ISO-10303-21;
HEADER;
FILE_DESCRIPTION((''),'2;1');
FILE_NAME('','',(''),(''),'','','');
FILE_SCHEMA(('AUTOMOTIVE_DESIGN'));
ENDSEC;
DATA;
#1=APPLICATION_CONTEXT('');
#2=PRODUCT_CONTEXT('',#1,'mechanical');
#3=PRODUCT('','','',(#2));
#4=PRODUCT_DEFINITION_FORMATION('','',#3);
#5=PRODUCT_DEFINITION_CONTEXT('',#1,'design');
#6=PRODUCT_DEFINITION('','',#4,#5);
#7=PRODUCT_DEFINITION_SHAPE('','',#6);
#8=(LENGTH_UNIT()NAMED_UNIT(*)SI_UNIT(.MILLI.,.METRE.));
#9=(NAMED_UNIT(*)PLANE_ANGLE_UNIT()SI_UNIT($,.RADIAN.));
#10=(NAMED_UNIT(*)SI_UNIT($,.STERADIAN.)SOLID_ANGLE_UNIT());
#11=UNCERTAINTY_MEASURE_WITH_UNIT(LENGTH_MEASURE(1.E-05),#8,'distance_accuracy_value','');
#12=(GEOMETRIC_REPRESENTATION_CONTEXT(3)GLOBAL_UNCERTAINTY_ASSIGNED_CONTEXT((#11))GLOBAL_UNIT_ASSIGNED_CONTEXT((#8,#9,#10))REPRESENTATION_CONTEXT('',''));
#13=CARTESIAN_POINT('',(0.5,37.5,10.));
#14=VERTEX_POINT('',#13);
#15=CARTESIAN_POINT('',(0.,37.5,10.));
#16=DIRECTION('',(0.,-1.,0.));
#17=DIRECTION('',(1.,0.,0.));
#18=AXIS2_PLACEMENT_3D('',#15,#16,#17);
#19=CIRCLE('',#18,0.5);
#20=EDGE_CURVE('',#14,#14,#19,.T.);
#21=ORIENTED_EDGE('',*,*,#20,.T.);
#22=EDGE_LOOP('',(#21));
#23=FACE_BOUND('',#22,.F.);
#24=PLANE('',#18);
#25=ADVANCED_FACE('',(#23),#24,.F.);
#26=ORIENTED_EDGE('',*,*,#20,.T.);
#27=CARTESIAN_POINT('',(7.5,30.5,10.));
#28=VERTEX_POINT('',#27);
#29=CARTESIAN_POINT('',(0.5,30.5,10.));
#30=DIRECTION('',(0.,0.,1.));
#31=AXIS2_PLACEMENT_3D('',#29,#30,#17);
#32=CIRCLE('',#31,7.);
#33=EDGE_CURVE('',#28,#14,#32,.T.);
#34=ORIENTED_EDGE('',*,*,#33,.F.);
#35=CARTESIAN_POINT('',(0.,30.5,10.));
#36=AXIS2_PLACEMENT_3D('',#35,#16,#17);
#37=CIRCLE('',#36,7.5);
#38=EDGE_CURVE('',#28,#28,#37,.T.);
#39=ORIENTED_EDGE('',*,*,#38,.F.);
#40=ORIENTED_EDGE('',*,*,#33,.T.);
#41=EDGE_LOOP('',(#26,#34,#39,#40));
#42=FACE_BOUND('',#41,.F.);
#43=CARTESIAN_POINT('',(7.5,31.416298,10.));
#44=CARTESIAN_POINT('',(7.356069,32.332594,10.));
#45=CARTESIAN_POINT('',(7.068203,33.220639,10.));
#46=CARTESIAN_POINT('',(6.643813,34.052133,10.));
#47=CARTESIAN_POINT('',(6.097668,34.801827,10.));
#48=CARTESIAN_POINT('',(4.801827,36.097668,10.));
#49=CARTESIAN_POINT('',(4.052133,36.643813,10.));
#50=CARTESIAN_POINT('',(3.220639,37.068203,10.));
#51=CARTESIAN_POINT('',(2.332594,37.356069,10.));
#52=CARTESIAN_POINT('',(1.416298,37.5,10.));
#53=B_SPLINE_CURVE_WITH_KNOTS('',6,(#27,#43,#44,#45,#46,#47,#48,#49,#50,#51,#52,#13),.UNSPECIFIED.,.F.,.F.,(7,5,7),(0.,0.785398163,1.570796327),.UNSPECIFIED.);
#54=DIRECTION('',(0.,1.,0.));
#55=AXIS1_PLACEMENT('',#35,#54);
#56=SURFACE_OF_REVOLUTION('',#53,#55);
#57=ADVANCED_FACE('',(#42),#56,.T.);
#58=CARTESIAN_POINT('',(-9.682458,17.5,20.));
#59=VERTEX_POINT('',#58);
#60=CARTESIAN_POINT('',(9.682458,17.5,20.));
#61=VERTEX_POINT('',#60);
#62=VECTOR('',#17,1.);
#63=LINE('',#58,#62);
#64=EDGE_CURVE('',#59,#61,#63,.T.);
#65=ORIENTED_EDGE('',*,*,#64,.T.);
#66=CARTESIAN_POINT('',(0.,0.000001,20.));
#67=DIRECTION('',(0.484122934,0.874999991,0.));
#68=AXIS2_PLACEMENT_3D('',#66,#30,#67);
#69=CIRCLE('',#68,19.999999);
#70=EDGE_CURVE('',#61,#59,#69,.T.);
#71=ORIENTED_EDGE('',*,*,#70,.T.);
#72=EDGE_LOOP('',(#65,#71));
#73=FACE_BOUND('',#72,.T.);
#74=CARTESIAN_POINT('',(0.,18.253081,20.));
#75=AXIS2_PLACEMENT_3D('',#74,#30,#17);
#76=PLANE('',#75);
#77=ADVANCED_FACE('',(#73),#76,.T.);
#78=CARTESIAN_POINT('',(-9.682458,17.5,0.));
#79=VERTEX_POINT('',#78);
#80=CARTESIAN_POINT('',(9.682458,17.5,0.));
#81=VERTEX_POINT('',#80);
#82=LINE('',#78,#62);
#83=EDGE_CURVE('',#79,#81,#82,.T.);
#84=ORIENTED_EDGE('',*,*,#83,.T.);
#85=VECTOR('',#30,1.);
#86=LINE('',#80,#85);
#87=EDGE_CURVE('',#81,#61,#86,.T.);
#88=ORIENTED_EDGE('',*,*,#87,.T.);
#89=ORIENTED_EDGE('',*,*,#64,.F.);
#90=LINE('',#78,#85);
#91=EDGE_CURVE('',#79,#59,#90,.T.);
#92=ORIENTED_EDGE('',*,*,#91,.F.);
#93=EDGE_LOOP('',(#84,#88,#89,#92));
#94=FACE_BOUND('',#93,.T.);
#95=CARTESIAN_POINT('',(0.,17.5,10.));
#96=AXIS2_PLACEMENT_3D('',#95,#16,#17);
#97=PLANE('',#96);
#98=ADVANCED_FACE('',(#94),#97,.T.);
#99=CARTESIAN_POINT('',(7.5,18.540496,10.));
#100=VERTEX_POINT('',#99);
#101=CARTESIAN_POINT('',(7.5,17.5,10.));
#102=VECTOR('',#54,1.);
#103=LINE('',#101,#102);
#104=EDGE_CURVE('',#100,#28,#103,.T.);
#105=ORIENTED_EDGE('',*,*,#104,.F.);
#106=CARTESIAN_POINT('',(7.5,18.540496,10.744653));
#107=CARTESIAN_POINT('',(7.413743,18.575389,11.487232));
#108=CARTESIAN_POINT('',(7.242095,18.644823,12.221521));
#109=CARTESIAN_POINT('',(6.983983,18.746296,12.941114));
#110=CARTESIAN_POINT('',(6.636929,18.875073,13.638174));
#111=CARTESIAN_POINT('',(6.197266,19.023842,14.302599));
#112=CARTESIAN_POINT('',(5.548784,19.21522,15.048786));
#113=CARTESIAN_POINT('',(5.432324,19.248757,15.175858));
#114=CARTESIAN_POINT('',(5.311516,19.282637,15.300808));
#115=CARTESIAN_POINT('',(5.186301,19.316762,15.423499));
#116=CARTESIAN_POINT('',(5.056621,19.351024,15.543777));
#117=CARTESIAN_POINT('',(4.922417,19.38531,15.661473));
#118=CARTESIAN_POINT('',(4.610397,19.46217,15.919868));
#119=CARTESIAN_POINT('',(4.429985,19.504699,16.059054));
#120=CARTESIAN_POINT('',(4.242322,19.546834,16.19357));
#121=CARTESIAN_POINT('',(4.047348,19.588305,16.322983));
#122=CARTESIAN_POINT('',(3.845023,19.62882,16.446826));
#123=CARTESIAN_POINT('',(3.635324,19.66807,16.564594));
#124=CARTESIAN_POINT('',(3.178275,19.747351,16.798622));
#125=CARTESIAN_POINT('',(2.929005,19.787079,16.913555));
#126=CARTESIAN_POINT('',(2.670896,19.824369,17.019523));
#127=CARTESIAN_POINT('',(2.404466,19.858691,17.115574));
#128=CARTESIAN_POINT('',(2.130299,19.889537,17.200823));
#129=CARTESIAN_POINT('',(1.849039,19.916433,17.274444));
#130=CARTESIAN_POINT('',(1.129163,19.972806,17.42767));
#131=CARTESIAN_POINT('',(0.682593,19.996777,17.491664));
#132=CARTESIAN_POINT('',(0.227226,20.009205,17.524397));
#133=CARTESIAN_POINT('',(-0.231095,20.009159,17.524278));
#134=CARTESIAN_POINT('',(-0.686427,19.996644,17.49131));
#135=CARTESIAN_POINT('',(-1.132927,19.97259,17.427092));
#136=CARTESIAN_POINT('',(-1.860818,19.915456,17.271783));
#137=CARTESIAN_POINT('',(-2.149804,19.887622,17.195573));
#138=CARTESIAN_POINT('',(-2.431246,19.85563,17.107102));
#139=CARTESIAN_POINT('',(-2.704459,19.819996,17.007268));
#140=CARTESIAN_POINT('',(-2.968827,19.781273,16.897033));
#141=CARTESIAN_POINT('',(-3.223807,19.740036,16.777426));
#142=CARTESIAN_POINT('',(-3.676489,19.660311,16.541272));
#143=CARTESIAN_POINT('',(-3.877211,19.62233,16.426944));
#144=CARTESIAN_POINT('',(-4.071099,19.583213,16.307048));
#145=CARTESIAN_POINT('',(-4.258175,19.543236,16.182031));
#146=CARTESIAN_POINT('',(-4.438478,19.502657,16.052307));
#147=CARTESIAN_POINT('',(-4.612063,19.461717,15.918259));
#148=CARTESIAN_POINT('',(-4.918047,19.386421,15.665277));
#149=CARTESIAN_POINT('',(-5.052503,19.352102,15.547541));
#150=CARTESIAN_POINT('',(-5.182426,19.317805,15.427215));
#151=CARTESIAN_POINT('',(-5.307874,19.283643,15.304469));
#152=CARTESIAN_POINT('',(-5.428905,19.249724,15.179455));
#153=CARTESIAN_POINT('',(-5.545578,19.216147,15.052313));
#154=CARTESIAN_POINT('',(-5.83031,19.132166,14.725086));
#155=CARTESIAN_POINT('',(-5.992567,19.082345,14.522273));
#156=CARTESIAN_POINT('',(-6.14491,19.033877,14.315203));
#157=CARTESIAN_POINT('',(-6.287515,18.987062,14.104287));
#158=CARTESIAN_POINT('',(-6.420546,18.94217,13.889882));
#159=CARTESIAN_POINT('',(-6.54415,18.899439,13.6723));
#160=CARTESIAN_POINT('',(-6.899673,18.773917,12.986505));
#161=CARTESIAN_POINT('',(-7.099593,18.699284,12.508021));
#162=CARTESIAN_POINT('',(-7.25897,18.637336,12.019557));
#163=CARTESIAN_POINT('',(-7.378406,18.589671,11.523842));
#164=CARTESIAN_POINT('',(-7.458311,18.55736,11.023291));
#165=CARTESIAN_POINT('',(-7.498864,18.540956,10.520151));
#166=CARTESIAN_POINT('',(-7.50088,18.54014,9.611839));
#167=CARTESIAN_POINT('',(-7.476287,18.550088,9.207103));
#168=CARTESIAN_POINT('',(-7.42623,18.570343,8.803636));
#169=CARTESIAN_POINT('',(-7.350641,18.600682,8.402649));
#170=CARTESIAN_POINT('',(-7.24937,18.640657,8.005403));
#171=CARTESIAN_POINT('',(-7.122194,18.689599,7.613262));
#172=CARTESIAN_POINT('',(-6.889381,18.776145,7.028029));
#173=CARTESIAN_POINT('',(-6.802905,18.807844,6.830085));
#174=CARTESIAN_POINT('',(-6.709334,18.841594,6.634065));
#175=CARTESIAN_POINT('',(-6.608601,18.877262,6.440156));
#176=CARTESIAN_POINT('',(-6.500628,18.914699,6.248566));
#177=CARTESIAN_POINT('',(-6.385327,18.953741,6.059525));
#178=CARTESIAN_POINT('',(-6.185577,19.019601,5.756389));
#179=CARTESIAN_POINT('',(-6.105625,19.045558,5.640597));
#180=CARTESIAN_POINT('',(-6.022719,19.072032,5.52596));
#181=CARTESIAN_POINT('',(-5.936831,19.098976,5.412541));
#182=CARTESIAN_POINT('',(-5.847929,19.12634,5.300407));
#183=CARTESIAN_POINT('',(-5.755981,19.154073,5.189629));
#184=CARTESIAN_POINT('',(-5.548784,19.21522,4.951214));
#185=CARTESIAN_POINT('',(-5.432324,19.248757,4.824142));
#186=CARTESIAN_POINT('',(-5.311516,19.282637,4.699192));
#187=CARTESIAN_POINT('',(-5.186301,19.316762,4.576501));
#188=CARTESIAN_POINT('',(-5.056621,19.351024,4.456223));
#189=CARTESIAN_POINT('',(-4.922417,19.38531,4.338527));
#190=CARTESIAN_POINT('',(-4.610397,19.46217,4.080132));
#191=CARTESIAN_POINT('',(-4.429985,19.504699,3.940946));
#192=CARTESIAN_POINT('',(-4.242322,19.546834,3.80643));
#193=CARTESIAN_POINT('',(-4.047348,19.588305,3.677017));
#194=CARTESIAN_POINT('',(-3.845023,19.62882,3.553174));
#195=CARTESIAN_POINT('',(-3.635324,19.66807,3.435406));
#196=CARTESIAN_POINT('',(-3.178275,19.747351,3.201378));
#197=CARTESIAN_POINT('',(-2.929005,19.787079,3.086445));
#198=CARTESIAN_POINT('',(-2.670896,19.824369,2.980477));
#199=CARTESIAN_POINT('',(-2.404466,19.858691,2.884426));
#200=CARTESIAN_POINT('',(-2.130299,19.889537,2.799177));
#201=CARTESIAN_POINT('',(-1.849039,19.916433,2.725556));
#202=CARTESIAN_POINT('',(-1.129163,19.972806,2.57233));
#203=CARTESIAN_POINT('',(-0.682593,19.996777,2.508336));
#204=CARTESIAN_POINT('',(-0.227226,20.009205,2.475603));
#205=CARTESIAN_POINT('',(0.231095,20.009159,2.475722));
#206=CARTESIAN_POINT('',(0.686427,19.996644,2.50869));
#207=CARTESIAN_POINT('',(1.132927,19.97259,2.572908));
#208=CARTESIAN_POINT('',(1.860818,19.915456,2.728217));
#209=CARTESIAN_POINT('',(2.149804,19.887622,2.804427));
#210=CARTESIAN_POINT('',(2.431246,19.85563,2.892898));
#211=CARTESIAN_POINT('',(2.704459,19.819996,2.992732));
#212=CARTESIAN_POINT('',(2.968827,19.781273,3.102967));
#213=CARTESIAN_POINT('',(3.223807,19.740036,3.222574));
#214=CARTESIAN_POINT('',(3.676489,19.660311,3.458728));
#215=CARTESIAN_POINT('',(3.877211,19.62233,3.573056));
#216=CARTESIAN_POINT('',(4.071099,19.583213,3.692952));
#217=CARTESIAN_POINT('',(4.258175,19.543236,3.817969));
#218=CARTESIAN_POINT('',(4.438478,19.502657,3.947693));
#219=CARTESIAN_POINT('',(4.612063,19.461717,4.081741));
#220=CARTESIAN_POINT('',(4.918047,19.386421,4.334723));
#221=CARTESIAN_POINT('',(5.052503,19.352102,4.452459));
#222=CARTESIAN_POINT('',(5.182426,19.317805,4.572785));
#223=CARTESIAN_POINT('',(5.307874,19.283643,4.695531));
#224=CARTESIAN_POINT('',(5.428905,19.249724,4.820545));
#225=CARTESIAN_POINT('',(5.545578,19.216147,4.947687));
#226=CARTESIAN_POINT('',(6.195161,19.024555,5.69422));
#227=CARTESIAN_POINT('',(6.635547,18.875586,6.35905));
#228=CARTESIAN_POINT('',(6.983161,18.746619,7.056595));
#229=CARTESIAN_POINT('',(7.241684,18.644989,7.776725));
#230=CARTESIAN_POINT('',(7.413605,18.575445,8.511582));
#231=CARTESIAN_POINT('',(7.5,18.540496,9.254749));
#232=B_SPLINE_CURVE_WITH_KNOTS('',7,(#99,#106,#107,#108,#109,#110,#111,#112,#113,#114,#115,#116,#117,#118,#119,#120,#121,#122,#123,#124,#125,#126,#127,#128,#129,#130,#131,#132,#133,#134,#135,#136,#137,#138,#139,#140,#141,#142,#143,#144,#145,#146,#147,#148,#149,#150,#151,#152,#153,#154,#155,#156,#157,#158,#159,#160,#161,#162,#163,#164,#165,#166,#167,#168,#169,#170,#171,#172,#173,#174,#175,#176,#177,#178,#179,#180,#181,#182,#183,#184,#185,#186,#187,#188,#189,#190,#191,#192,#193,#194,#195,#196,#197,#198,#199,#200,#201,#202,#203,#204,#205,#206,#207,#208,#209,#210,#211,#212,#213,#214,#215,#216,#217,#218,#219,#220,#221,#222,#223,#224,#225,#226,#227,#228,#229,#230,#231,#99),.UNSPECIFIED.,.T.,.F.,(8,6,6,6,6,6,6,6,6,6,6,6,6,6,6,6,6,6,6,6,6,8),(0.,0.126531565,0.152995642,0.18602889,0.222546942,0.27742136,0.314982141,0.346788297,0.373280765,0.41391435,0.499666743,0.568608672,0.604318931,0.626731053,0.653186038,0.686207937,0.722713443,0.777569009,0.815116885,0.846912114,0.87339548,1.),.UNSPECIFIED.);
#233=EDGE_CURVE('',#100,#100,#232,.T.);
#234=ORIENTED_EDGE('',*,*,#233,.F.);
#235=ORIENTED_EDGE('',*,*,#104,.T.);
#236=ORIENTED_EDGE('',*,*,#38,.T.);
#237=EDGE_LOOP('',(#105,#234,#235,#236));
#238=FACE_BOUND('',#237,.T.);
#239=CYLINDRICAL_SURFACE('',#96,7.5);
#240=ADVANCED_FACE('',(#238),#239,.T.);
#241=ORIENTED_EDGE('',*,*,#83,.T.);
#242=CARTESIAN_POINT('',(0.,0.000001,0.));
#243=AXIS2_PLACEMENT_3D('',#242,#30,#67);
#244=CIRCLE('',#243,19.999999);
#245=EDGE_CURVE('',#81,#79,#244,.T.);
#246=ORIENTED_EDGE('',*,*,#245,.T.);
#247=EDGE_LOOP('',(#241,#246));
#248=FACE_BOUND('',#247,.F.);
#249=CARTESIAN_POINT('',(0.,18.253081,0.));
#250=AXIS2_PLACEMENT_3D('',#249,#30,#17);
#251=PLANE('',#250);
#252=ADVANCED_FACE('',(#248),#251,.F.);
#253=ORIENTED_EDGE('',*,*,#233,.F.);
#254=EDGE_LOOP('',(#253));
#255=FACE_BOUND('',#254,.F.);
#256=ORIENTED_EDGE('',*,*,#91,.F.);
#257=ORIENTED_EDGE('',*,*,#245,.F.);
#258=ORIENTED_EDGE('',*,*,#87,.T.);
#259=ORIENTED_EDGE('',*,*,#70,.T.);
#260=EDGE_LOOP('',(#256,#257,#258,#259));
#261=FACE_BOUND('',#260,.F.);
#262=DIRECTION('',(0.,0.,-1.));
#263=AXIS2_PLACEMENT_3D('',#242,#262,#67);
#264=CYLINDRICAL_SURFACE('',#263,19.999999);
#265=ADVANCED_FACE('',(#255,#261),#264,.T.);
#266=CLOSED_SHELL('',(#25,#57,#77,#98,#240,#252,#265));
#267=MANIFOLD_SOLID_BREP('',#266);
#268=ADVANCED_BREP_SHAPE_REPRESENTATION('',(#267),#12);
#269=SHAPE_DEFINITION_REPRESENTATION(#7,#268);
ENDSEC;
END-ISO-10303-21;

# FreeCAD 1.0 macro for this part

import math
import FreeCAD as App
import Part
import Sketcher
from FreeCAD import Vector
Q = App.Units.Quantity


def edges_at(feature, points):
    """Names of the edges that pass closest to the given points."""
    edges = feature.Shape.Edges
    near = lambda p: min(range(len(edges)), key=lambda i: edges[i].distToShape(Part.Vertex(*p))[0])
    return sorted({f"Edge{near(p) + 1}" for p in points})

doc = App.newDocument("Part")
body = doc.addObject("PartDesign::Body", "Body")

sketch1 = body.newObject("Sketcher::SketchObject", "Sketch")
sketch1.AttachmentSupport = (doc.getObject("XY_Plane"), [""])
sketch1.MapMode = "FlatFace"
sketch1.addGeometry([
    Part.ArcOfCircle(Part.Circle(Vector(0, 0, 0), Vector(0, 0, 1), 20), math.radians(61), math.radians(119)),
    Part.LineSegment(Vector(-10, 18, 0), Vector(10, 18, 0)),
], False)
sketch1.addConstraint([
    Sketcher.Constraint("Coincident", 0, 1, 1, 2),
    Sketcher.Constraint("Coincident", 1, 1, 0, 2),
    Sketcher.Constraint("Horizontal", 1),
    Sketcher.Constraint("Coincident", 0, 3, -1, 1),
    Sketcher.Constraint("Radius", 0, Q("19.999999 mm")),
    Sketcher.Constraint("DistanceY", -1, 1, 0, 1, Q("17.5 mm")),
])
pad1 = body.newObject("PartDesign::Pad", "Pad")
pad1.Profile = sketch1
pad1.Length = 20

sketch2 = body.newObject("Sketcher::SketchObject", "Sketch001")
sketch2.AttachmentSupport = (doc.getObject("XZ_Plane"), [""])
sketch2.MapMode = "FlatFace"
sketch2.AttachmentOffset = App.Placement(Vector(0, 0, -17.5), App.Rotation())
sketch2.addGeometry(Part.Circle(Vector(0, 10, 0), Vector(0, 0, 1), 8), False)
sketch2.addConstraint([
    Sketcher.Constraint("PointOnObject", 0, 3, -2),
    Sketcher.Constraint("Diameter", 0, Q("15 mm")),
    Sketcher.Constraint("DistanceY", -1, 1, 0, 3, Q("10 mm")),
])
pad2 = body.newObject("PartDesign::Pad", "Pad001")
pad2.Profile = sketch2
pad2.Length = 20
pad2.Reversed = True
doc.recompute()

fillet = body.newObject("PartDesign::Fillet", "Fillet")
fillet.Base = (pad2, edges_at(pad2, [(-7.5, 37.5, 10)]))
fillet.Radius = 7

doc.recompute()
